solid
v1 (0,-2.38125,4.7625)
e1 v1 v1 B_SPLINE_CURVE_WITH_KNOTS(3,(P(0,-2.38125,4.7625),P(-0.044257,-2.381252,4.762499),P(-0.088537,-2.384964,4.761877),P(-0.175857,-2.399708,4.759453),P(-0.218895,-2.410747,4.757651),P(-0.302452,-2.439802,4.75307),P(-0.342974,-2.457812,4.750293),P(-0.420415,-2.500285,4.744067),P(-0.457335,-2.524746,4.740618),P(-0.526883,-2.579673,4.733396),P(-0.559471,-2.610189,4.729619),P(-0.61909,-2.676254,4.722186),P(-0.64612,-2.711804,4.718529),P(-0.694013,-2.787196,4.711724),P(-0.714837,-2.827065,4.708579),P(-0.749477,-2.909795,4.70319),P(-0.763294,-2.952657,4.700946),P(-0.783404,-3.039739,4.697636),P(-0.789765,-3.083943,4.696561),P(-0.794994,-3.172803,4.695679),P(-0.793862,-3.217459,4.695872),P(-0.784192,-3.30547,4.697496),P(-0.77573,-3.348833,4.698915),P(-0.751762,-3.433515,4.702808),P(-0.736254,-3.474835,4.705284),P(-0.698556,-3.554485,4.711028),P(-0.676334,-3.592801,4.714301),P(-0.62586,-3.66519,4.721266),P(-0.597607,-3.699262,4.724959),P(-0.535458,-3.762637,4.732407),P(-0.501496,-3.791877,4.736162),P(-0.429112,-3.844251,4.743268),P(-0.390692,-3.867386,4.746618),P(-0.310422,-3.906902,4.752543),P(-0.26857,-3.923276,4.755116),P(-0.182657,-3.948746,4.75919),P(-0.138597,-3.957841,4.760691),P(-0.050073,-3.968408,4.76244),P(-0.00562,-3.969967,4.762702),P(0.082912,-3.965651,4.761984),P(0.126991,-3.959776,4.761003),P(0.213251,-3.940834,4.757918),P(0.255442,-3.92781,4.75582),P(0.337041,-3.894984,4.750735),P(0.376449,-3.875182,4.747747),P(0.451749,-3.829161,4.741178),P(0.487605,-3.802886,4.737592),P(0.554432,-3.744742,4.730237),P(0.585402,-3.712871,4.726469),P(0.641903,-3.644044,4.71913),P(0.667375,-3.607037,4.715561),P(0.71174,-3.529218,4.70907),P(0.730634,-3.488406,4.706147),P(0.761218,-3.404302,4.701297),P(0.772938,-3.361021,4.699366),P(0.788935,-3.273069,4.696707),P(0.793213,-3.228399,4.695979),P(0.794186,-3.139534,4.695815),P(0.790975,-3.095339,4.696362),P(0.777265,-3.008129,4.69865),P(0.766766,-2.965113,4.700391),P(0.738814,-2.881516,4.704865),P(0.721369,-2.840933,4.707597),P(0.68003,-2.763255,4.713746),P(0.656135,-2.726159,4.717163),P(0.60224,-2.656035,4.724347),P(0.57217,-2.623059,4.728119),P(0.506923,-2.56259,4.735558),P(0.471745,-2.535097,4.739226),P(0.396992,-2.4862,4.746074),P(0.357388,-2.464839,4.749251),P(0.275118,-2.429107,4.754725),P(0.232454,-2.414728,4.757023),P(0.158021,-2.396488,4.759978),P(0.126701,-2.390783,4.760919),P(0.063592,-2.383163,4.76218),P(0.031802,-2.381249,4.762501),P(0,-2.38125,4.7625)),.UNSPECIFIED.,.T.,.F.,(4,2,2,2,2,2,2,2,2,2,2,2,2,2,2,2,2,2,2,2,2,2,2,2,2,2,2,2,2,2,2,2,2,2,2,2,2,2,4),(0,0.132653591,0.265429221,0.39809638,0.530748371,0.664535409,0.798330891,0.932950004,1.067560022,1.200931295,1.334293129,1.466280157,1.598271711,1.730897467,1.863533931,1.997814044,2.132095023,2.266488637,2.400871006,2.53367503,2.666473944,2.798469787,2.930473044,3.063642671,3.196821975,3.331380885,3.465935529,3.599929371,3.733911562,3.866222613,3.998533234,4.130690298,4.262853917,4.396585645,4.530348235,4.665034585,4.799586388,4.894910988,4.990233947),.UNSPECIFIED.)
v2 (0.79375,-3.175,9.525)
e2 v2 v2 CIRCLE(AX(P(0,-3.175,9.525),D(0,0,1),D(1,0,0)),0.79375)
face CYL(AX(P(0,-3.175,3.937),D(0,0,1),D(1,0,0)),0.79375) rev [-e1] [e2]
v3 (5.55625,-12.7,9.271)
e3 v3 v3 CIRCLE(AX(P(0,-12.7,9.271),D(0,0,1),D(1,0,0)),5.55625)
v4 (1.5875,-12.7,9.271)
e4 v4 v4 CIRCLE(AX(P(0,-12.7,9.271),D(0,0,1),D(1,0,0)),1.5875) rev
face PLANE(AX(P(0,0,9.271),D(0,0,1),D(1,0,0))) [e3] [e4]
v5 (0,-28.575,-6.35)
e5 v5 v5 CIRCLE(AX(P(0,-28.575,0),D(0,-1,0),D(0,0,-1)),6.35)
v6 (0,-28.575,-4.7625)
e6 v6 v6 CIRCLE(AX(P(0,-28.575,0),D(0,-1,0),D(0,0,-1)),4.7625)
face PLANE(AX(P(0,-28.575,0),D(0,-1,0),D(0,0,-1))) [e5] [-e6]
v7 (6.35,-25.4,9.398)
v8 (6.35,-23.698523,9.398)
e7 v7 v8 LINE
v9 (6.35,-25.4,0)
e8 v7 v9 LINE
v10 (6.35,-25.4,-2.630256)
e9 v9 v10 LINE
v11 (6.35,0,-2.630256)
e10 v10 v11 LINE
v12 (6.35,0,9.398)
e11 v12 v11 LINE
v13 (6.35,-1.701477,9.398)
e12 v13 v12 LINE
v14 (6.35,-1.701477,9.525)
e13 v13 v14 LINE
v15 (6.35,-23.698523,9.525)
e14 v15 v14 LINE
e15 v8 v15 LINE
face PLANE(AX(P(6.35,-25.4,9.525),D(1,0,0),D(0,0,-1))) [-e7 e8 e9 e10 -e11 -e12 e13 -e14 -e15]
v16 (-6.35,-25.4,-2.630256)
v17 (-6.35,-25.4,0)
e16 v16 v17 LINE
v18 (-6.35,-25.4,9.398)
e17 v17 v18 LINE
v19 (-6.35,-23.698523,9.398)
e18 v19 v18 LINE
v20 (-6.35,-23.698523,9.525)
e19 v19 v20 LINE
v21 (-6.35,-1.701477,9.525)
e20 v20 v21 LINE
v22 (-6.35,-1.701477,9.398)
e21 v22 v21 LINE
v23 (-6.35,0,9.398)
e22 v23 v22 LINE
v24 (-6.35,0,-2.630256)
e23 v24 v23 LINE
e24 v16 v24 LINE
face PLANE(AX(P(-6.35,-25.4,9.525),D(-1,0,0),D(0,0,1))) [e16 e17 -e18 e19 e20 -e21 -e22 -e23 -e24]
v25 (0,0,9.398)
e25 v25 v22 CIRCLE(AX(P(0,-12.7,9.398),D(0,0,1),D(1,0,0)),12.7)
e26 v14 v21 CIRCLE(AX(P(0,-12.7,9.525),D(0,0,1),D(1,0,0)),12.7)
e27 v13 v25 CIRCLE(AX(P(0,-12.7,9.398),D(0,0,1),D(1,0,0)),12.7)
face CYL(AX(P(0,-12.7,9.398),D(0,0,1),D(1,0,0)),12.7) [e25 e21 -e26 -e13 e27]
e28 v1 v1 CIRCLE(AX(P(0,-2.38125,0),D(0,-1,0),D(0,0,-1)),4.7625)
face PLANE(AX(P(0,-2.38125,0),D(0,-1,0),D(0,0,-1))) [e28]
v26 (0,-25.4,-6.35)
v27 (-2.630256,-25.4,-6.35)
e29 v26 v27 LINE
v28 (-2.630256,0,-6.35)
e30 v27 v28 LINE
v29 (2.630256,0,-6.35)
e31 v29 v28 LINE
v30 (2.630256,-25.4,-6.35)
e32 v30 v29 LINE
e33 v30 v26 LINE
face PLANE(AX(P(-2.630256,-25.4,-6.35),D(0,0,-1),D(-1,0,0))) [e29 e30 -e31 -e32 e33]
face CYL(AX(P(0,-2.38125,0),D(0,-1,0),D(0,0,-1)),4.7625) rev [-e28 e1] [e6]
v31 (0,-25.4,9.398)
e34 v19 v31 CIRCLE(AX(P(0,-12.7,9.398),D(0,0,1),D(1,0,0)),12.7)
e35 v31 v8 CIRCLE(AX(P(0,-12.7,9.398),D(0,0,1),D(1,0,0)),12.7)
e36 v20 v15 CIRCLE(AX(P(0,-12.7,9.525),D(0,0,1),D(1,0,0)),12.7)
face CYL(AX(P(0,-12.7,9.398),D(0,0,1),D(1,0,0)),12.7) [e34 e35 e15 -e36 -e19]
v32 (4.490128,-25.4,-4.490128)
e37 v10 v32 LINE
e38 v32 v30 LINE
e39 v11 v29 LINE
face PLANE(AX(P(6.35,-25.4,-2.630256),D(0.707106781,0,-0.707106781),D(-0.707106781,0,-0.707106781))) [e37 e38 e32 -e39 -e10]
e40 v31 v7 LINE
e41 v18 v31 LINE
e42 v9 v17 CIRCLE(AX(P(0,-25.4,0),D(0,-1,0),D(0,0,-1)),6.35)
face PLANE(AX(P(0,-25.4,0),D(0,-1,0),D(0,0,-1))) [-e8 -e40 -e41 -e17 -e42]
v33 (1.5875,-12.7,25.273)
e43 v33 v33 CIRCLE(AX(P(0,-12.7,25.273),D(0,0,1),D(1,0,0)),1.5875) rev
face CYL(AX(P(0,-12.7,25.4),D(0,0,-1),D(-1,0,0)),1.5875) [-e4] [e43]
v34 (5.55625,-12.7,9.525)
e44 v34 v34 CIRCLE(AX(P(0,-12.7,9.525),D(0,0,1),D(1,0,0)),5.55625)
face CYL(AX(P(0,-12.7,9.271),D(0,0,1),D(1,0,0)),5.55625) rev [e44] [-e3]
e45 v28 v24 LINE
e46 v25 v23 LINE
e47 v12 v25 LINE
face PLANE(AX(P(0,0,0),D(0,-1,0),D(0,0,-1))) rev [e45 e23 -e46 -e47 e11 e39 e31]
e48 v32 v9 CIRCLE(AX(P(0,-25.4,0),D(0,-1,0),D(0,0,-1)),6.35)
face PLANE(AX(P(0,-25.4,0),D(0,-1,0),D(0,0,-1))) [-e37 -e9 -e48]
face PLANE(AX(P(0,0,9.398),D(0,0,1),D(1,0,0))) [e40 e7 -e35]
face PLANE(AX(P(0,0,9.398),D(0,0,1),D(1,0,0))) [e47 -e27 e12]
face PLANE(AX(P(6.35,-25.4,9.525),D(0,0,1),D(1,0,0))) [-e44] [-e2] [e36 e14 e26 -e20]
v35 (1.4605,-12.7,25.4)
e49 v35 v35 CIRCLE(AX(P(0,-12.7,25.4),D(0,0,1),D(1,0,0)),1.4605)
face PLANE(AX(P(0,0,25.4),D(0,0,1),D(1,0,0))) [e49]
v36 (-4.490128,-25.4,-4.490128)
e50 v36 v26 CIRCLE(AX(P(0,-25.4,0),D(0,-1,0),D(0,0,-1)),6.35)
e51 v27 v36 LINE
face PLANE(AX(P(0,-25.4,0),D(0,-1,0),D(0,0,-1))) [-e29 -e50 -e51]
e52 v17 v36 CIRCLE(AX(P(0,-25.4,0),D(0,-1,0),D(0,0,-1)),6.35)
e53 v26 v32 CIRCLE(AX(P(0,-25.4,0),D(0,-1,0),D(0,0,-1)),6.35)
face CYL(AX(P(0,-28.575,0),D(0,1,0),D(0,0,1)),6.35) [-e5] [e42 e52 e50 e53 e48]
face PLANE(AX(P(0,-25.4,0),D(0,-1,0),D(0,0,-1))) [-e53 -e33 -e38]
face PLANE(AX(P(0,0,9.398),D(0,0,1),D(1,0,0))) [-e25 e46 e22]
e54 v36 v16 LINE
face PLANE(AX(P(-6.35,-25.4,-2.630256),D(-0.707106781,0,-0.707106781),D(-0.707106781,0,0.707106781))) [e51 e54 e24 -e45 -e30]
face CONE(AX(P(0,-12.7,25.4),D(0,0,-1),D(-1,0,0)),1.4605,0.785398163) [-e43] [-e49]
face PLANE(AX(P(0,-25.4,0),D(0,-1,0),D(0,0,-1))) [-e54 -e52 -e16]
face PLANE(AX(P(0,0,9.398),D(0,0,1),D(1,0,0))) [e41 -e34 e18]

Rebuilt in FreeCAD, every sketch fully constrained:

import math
import FreeCAD as App
import Part
import Sketcher

V = App.Vector
Q = App.Units.Quantity


def edges_at(feature, points):
    """Names of the edges that pass closest to the given points."""
    edges = feature.Shape.Edges
    near = lambda p: min(range(len(edges)), key=lambda i: edges[i].distToShape(Part.Vertex(*p))[0])
    return sorted({f"Edge{near(p) + 1}" for p in points})

doc = App.newDocument("Part")
body = doc.addObject("PartDesign::Body", "Body")

sketch1 = body.newObject("Sketcher::SketchObject", "Sketch")
sketch1.AttachmentSupport = (doc.getObject("XZ_Plane"), [""])
sketch1.MapMode = "FlatFace"
sketch1.addGeometry(Part.LineSegment(V(-6, 10, 0), V(6, 10, 0)), False)
sketch1.addGeometry(Part.LineSegment(V(6, 10, 0), V(6, -3, 0)), False)
sketch1.addGeometry(Part.LineSegment(V(6, -3, 0), V(3, -6, 0)), False)
sketch1.addGeometry(Part.LineSegment(V(3, -6, 0), V(-3, -6, 0)), False)
sketch1.addGeometry(Part.LineSegment(V(-3, -6, 0), V(-6, -3, 0)), False)
sketch1.addGeometry(Part.LineSegment(V(-6, -3, 0), V(-6, 10, 0)), False)
sketch1.addConstraint(Sketcher.Constraint("Coincident", 0, 2, 1, 1))
sketch1.addConstraint(Sketcher.Constraint("Coincident", 1, 2, 2, 1))
sketch1.addConstraint(Sketcher.Constraint("Coincident", 2, 2, 3, 1))
sketch1.addConstraint(Sketcher.Constraint("Coincident", 3, 2, 4, 1))
sketch1.addConstraint(Sketcher.Constraint("Coincident", 4, 2, 5, 1))
sketch1.addConstraint(Sketcher.Constraint("Coincident", 5, 2, 0, 1))
sketch1.addConstraint(Sketcher.Constraint("Horizontal", 0))
sketch1.addConstraint(Sketcher.Constraint("Vertical", 1))
sketch1.addConstraint(Sketcher.Constraint("Horizontal", 3))
sketch1.addConstraint(Sketcher.Constraint("Vertical", 5))
sketch1.addConstraint(Sketcher.Constraint("Symmetric", 1, 2, 4, 2, -2))
sketch1.addConstraint(Sketcher.Constraint("Perpendicular", 2, 4))
sketch1.addConstraint(Sketcher.Constraint("Equal", 2, 4))
sketch1.addConstraint(Sketcher.Constraint("DistanceX", 0, 1, 0, 2, Q("0.5 in")))
sketch1.addConstraint(Sketcher.Constraint("DistanceY", 2, 2, -1, 1, Q("0.25 in")))
sketch1.addConstraint(Sketcher.Constraint("DistanceY", -1, 1, 0, 2, Q("0.375 in")))
sketch1.addConstraint(Sketcher.Constraint("DistanceX", 3, 2, 3, 1, 5.260512))
pad1 = body.newObject("PartDesign::Pad", "Pad")
pad1.Profile = sketch1
pad1.Length = Q("1 in")

sketch2 = body.newObject("Sketcher::SketchObject", "Sketch001")
sketch2.AttachmentSupport = (doc.getObject("XZ_Plane"), [""])
sketch2.MapMode = "FlatFace"
sketch2.AttachmentOffset = App.Placement(V(0, 0, 1 * 25.4), App.Rotation())
sketch2.addGeometry(Part.Circle(V(0, 0, 0), V(0, 0, 1), 6), False)
sketch2.addConstraint(Sketcher.Constraint("Coincident", 0, 3, -1, 1))
sketch2.addConstraint(Sketcher.Constraint("Diameter", 0, Q("0.5 in")))
pad2 = body.newObject("PartDesign::Pad", "Pad001")
pad2.Profile = sketch2
pad2.Length = Q("0.125 in")

sketch3 = body.newObject("Sketcher::SketchObject", "Sketch002")
sketch3.AttachmentSupport = (doc.getObject("XZ_Plane"), [""])
sketch3.MapMode = "FlatFace"
sketch3.AttachmentOffset = App.Placement(V(0, 0, 1.125 * 25.4), App.Rotation())
sketch3.addGeometry(Part.Circle(V(0, 0, 0), V(0, 0, 1), 4.8), False)
sketch3.addConstraint(Sketcher.Constraint("Coincident", 0, 3, -1, 1))
sketch3.addConstraint(Sketcher.Constraint("Diameter", 0, Q("0.375 in")))
pocket1 = body.newObject("PartDesign::Pocket", "Pocket")
pocket1.Profile = sketch3
pocket1.Length = Q("1.03125 in")

sketch4 = body.newObject("Sketcher::SketchObject", "Sketch003")
sketch4.AttachmentSupport = (doc.getObject("XY_Plane"), [""])
sketch4.MapMode = "FlatFace"
sketch4.AttachmentOffset = App.Placement(V(0, 0, 0.375 * 25.4), App.Rotation())
sketch4.addGeometry(Part.Circle(V(0, -12.7, 0), V(0, 0, 1), 1.6), False)
sketch4.addConstraint(Sketcher.Constraint("PointOnObject", 0, 3, -2))
sketch4.addConstraint(Sketcher.Constraint("Diameter", 0, Q("0.125 in")))
sketch4.addConstraint(Sketcher.Constraint("DistanceY", 0, 3, -1, 1, Q("0.5 in")))
pad3 = body.newObject("PartDesign::Pad", "Pad002")
pad3.Profile = sketch4
pad3.Length = Q("0.625 in")

sketch5 = body.newObject("Sketcher::SketchObject", "Sketch004")
sketch5.AttachmentSupport = (doc.getObject("XY_Plane"), [""])
sketch5.MapMode = "FlatFace"
sketch5.AttachmentOffset = App.Placement(V(0, 0, 0.365 * 25.4), App.Rotation())
sketch5.addGeometry(Part.Circle(V(0, -12.7, 0), V(0, 0, 1), 5.6), False)
sketch5.addGeometry(Part.Circle(V(0, -12.7, 0), V(0, 0, 1), 1.6), False)
sketch5.addConstraint(Sketcher.Constraint("Coincident", 1, 3, 0, 3))
sketch5.addConstraint(Sketcher.Constraint("PointOnObject", 0, 3, -2))
sketch5.addConstraint(Sketcher.Constraint("Diameter", 0, Q("0.4375 in")))
sketch5.addConstraint(Sketcher.Constraint("Diameter", 1, Q("0.125 in")))
sketch5.addConstraint(Sketcher.Constraint("DistanceY", 0, 3, -1, 1, Q("0.5 in")))
pocket2 = body.newObject("PartDesign::Pocket", "Pocket001")
pocket2.Profile = sketch5
pocket2.Length = Q("0.01 in")
pocket2.Reversed = True

sketch6 = body.newObject("Sketcher::SketchObject", "Sketch005")
sketch6.AttachmentSupport = (doc.getObject("XY_Plane"), [""])
sketch6.MapMode = "FlatFace"
sketch6.AttachmentOffset = App.Placement(V(0, 0, 0.375 * 25.4), App.Rotation())
sketch6.addGeometry(Part.ArcOfCircle(Part.Circle(V(0, -12.7, 0), V(0, 0, 1), 12.7), math.radians(60), math.radians(90)), False)
sketch6.addGeometry(Part.LineSegment(V(6.3, -1.7, 0), V(6.3, 0, 0)), False)
sketch6.addGeometry(Part.LineSegment(V(6.3, 0, 0), V(0, 0, 0)), False)
sketch6.addGeometry(Part.ArcOfCircle(Part.Circle(V(0, -12.7, 0), V(0, 0, 1), 12.7), math.radians(90), math.radians(120)), False)
sketch6.addGeometry(Part.LineSegment(V(0, 0, 0), V(-6.3, 0, 0)), False)
sketch6.addGeometry(Part.LineSegment(V(-6.3, 0, 0), V(-6.3, -1.7, 0)), False)
sketch6.addGeometry(Part.LineSegment(V(-6.3, -25.4, 0), V(0, -25.4, 0)), False)
sketch6.addGeometry(Part.ArcOfCircle(Part.Circle(V(0, -12.7, 0), V(0, 0, 1), 12.7), math.radians(-120), math.radians(-90)), False)
sketch6.addGeometry(Part.LineSegment(V(-6.3, -23.7, 0), V(-6.3, -25.4, 0)), False)
sketch6.addGeometry(Part.LineSegment(V(6.3, -25.4, 0), V(6.3, -23.7, 0)), False)
sketch6.addGeometry(Part.ArcOfCircle(Part.Circle(V(0, -12.7, 0), V(0, 0, 1), 12.7), math.radians(-90), math.radians(-60)), False)
sketch6.addGeometry(Part.LineSegment(V(0, -25.4, 0), V(6.3, -25.4, 0)), False)
sketch6.addConstraint(Sketcher.Constraint("Coincident", 0, 1, 1, 1))
sketch6.addConstraint(Sketcher.Constraint("Coincident", 1, 2, 2, 1))
sketch6.addConstraint(Sketcher.Constraint("Tangent", 2, 2, 0, 2))
sketch6.addConstraint(Sketcher.Constraint("Tangent", 3, 1, 4, 1))
sketch6.addConstraint(Sketcher.Constraint("Coincident", 4, 2, 5, 1))
sketch6.addConstraint(Sketcher.Constraint("Coincident", 5, 2, 3, 2))
sketch6.addConstraint(Sketcher.Constraint("Tangent", 6, 2, 7, 2))
sketch6.addConstraint(Sketcher.Constraint("Coincident", 7, 1, 8, 1))
sketch6.addConstraint(Sketcher.Constraint("Coincident", 8, 2, 6, 1))
sketch6.addConstraint(Sketcher.Constraint("Coincident", 9, 2, 10, 2))
sketch6.addConstraint(Sketcher.Constraint("Tangent", 10, 1, 11, 1))
sketch6.addConstraint(Sketcher.Constraint("Coincident", 11, 2, 9, 1))
sketch6.addConstraint(Sketcher.Constraint("Vertical", 1))
sketch6.addConstraint(Sketcher.Constraint("Horizontal", 2))
sketch6.addConstraint(Sketcher.Constraint("Horizontal", 4))
sketch6.addConstraint(Sketcher.Constraint("Vertical", 5))
sketch6.addConstraint(Sketcher.Constraint("Horizontal", 6))
sketch6.addConstraint(Sketcher.Constraint("Vertical", 8))
sketch6.addConstraint(Sketcher.Constraint("Vertical", 9))
sketch6.addConstraint(Sketcher.Constraint("Horizontal", 11))
sketch6.addConstraint(Sketcher.Constraint("Coincident", 2, 2, -1, 1))
sketch6.addConstraint(Sketcher.Constraint("Coincident", 3, 1, -1, 1))
sketch6.addConstraint(Sketcher.Constraint("Coincident", 7, 3, 0, 3))
sketch6.addConstraint(Sketcher.Constraint("Coincident", 10, 3, 0, 3))
sketch6.addConstraint(Sketcher.Constraint("Equal", 0, 3))
sketch6.addConstraint(Sketcher.Constraint("Equal", 3, 7))
sketch6.addConstraint(Sketcher.Constraint("Equal", 7, 10))
sketch6.addConstraint(Sketcher.Constraint("Horizontal", 0, 1, 5, 2))
sketch6.addConstraint(Sketcher.Constraint("Horizontal", 7, 1, 9, 2))
sketch6.addConstraint(Sketcher.Constraint("Vertical", 5, 2, 7, 1))
sketch6.addConstraint(Sketcher.Constraint("Radius", 0, Q("0.5 in")))
sketch6.addConstraint(Sketcher.Constraint("DistanceX", 2, 2, 2, 1, Q("0.25 in")))
pocket3 = body.newObject("PartDesign::Pocket", "Pocket002")
pocket3.Profile = sketch6
pocket3.Length = Q("0.005 in")

sketch7 = body.newObject("Sketcher::SketchObject", "Sketch006")
sketch7.AttachmentSupport = (doc.getObject("XY_Plane"), [""])
sketch7.MapMode = "FlatFace"
sketch7.AttachmentOffset = App.Placement(V(0, 0, 0.375 * 25.4), App.Rotation())
sketch7.addGeometry(Part.Circle(V(0, -3.2, 0), V(0, 0, 1), 0.8), False)
sketch7.addConstraint(Sketcher.Constraint("PointOnObject", 0, 3, -2))
sketch7.addConstraint(Sketcher.Constraint("Diameter", 0, Q("0.0625 in")))
sketch7.addConstraint(Sketcher.Constraint("DistanceY", 0, 3, -1, 1, Q("0.125 in")))
pocket4 = body.newObject("PartDesign::Pocket", "Pocket003")
pocket4.Profile = sketch7
pocket4.Length = Q("0.22 in")
doc.recompute()

chamfer = body.newObject("PartDesign::Chamfer", "Chamfer")
chamfer.Base = (pocket4, edges_at(pocket4, [(-1.587, -12.7, 25.4)]))
chamfer.Size = Q("0.005 in")

doc.recompute()
